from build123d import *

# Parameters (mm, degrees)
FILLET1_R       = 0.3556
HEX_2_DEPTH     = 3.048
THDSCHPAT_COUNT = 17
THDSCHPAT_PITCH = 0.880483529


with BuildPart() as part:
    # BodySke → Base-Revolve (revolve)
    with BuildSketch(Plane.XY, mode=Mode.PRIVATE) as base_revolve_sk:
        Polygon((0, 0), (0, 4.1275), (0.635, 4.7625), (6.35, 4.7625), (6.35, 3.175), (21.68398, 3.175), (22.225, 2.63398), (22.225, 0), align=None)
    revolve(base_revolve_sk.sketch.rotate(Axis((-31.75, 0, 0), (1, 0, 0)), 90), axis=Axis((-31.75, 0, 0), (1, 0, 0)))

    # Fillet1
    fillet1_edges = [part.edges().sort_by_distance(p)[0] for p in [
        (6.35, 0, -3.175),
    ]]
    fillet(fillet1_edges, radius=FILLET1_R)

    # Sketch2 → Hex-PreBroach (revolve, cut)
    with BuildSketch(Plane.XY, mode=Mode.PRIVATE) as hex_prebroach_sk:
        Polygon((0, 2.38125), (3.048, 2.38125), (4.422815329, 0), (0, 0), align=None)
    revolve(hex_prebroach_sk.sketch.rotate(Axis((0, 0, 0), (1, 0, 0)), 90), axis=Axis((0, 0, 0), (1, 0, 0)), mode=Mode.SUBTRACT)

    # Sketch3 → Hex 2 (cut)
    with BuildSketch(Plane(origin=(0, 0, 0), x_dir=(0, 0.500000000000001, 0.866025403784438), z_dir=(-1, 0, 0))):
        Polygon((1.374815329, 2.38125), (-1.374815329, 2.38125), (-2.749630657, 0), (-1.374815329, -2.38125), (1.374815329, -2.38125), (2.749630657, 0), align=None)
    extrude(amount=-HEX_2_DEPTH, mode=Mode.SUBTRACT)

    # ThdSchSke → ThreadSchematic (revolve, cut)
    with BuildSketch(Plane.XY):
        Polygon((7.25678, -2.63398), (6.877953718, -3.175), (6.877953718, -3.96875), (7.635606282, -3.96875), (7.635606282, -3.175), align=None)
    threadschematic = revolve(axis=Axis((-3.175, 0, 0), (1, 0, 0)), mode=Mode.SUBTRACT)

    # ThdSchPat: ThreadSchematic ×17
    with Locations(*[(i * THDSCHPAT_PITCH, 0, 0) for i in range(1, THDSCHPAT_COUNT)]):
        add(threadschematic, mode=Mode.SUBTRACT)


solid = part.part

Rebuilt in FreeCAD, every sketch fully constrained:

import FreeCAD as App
import Part
import Sketcher
from FreeCAD import Vector
Q = App.Units.Quantity


def edges_at(feature, points):
    """Names of the edges that pass closest to the given points."""
    edges = feature.Shape.Edges
    near = lambda p: min(range(len(edges)), key=lambda i: edges[i].distToShape(Part.Vertex(*p))[0])
    return sorted({f"Edge{near(p) + 1}" for p in points})

doc = App.newDocument("Part")
body = doc.addObject("PartDesign::Body", "Body")

# Sketch on XY plane
sketch1 = body.newObject("Sketcher::SketchObject", "Sketch")
sketch1.AttachmentSupport = (doc.getObject("XY_Plane"), [""])
sketch1.MapMode = "FlatFace"
sketch1.addGeometry(Part.LineSegment(Vector(0, 4.1, 0), Vector(0, 0, 0)), False)
sketch1.addGeometry(Part.LineSegment(Vector(0, 0, 0), Vector(22.2, 0, 0)), False)
sketch1.addGeometry(Part.LineSegment(Vector(22.2, 0, 0), Vector(22.2, 2.6, 0)), False)
sketch1.addGeometry(Part.LineSegment(Vector(22.2, 2.6, 0), Vector(21.7, 3.2, 0)), False)
sketch1.addGeometry(Part.LineSegment(Vector(21.7, 3.2, 0), Vector(6.3, 3.2, 0)), False)
sketch1.addGeometry(Part.LineSegment(Vector(6.3, 3.2, 0), Vector(6.3, 4.8, 0)), False)
sketch1.addGeometry(Part.LineSegment(Vector(6.3, 4.8, 0), Vector(0.6, 4.8, 0)), False)
sketch1.addGeometry(Part.LineSegment(Vector(0.6, 4.8, 0), Vector(0, 4.1, 0)), False)
sketch1.addConstraint(Sketcher.Constraint("Coincident", 0, 2, 1, 1))
sketch1.addConstraint(Sketcher.Constraint("Coincident", 1, 2, 2, 1))
sketch1.addConstraint(Sketcher.Constraint("Coincident", 2, 2, 3, 1))
sketch1.addConstraint(Sketcher.Constraint("Coincident", 3, 2, 4, 1))
sketch1.addConstraint(Sketcher.Constraint("Coincident", 4, 2, 5, 1))
sketch1.addConstraint(Sketcher.Constraint("Coincident", 5, 2, 6, 1))
sketch1.addConstraint(Sketcher.Constraint("Coincident", 6, 2, 7, 1))
sketch1.addConstraint(Sketcher.Constraint("Coincident", 7, 2, 0, 1))
sketch1.addConstraint(Sketcher.Constraint("Vertical", 0))
sketch1.addConstraint(Sketcher.Constraint("Horizontal", 1))
sketch1.addConstraint(Sketcher.Constraint("Vertical", 2))
sketch1.addConstraint(Sketcher.Constraint("Horizontal", 4))
sketch1.addConstraint(Sketcher.Constraint("Vertical", 5))
sketch1.addConstraint(Sketcher.Constraint("Horizontal", 6))
sketch1.addConstraint(Sketcher.Constraint("Coincident", 0, 2, -1, 1))
sketch1.addConstraint(Sketcher.Constraint("Perpendicular", 3, 7))
sketch1.addConstraint(Sketcher.Constraint("Angle", 3, Q("135 deg")))
sketch1.addConstraint(Sketcher.Constraint("DistanceX", 1, 1, 1, 2, Q("0.875 in")))
sketch1.addConstraint(Sketcher.Constraint("DistanceX", 6, 2, 6, 1, Q("0.225 in")))
sketch1.addConstraint(Sketcher.Constraint("DistanceY", 5, 1, 5, 2, Q("0.0625 in")))
sketch1.addConstraint(Sketcher.Constraint("DistanceX", -1, 1, 4, 2, Q("0.25 in")))
sketch1.addConstraint(Sketcher.Constraint("DistanceX", 4, 2, 4, 1, Q("0.6037 in")))
sketch1.addConstraint(Sketcher.Constraint("DistanceY", 0, 2, 0, 1, Q("0.1625 in")))
revolution = body.newObject("PartDesign::Revolution", "Revolution")
revolution.Profile = sketch1
revolution.ReferenceAxis = (sketch1, ["H_Axis"])
revolution.Angle = 360
doc.recompute()

fillet = body.newObject("PartDesign::Fillet", "Fillet")
fillet.Base = (revolution, edges_at(revolution, [(6.35, 0, -3.175)]))
fillet.Radius = Q("0.014 in")

# Sketch on XY plane
sketch2 = body.newObject("Sketcher::SketchObject", "Sketch001")
sketch2.AttachmentSupport = (doc.getObject("XY_Plane"), [""])
sketch2.MapMode = "FlatFace"
sketch2.addGeometry(Part.LineSegment(Vector(3, 2.4, 0), Vector(0, 2.4, 0)), False)
sketch2.addGeometry(Part.LineSegment(Vector(0, 2.4, 0), Vector(0, 0, 0)), False)
sketch2.addGeometry(Part.LineSegment(Vector(0, 0, 0), Vector(4.4, 0, 0)), False)
sketch2.addGeometry(Part.LineSegment(Vector(4.4, 0, 0), Vector(3, 2.4, 0)), False)
sketch2.addConstraint(Sketcher.Constraint("Coincident", 0, 2, 1, 1))
sketch2.addConstraint(Sketcher.Constraint("Coincident", 1, 2, 2, 1))
sketch2.addConstraint(Sketcher.Constraint("Coincident", 2, 2, 3, 1))
sketch2.addConstraint(Sketcher.Constraint("Coincident", 3, 2, 0, 1))
sketch2.addConstraint(Sketcher.Constraint("Horizontal", 0))
sketch2.addConstraint(Sketcher.Constraint("Vertical", 1))
sketch2.addConstraint(Sketcher.Constraint("Horizontal", 2))
sketch2.addConstraint(Sketcher.Constraint("Coincident", 1, 2, -1, 1))
sketch2.addConstraint(Sketcher.Constraint("Angle", 3, Q("120 deg")))
sketch2.addConstraint(Sketcher.Constraint("DistanceX", 0, 2, 0, 1, Q("0.12 in")))
sketch2.addConstraint(Sketcher.Constraint("DistanceY", 1, 2, 1, 1, Q("0.09375 in")))
groove = body.newObject("PartDesign::Groove", "Groove")
groove.Profile = sketch2
groove.ReferenceAxis = (sketch2, ["H_Axis"])
groove.Angle = 360

# Sketch on YZ plane
sketch3 = body.newObject("Sketcher::SketchObject", "Sketch002")
sketch3.AttachmentSupport = (doc.getObject("YZ_Plane"), [""])
sketch3.MapMode = "FlatFace"
sketch3.addGeometry(Part.LineSegment(Vector(2.7, 0, 0), Vector(1.4, -2.4, 0)), False)
sketch3.addGeometry(Part.LineSegment(Vector(1.4, -2.4, 0), Vector(-1.4, -2.4, 0)), False)
sketch3.addGeometry(Part.LineSegment(Vector(-1.4, -2.4, 0), Vector(-2.7, 0, 0)), False)
sketch3.addGeometry(Part.LineSegment(Vector(-2.7, 0, 0), Vector(-1.4, 2.4, 0)), False)
sketch3.addGeometry(Part.LineSegment(Vector(-1.4, 2.4, 0), Vector(1.4, 2.4, 0)), False)
sketch3.addGeometry(Part.LineSegment(Vector(1.4, 2.4, 0), Vector(2.7, 0, 0)), False)
sketch3.addConstraint(Sketcher.Constraint("Coincident", 0, 2, 1, 1))
sketch3.addConstraint(Sketcher.Constraint("Coincident", 1, 2, 2, 1))
sketch3.addConstraint(Sketcher.Constraint("Coincident", 2, 2, 3, 1))
sketch3.addConstraint(Sketcher.Constraint("Coincident", 3, 2, 4, 1))
sketch3.addConstraint(Sketcher.Constraint("Coincident", 4, 2, 5, 1))
sketch3.addConstraint(Sketcher.Constraint("Coincident", 5, 2, 0, 1))
sketch3.addConstraint(Sketcher.Constraint("Horizontal", 1))
sketch3.addConstraint(Sketcher.Constraint("Horizontal", 4))
sketch3.addConstraint(Sketcher.Constraint("Symmetric", 0, 2, 3, 2, -1, 1))
sketch3.addConstraint(Sketcher.Constraint("Symmetric", 2, 2, 5, 2, -1, 1))
sketch3.addConstraint(Sketcher.Constraint("PointOnObject", 2, 2, -1))
sketch3.addConstraint(Sketcher.Constraint("Parallel", 2, 5))
sketch3.addConstraint(Sketcher.Constraint("Vertical", 1, 2, 3, 2))
sketch3.addConstraint(Sketcher.Constraint("Angle", 0, Q("-120 deg")))
sketch3.addConstraint(Sketcher.Constraint("DistanceY", 0, 2, -1, 1, Q("0.09375 in")))
sketch3.addConstraint(Sketcher.Constraint("DistanceX", 1, 2, 1, 1, Q("2.749631 mm")))
pocket1 = body.newObject("PartDesign::Pocket", "Pocket")
pocket1.Profile = sketch3
pocket1.Length = Q("0.12 in")
pocket1.Reversed = True

# Sketch on XY plane
sketch4 = body.newObject("Sketcher::SketchObject", "Sketch003")
sketch4.AttachmentSupport = (doc.getObject("XY_Plane"), [""])
sketch4.MapMode = "FlatFace"
sketch4.addGeometry(Part.LineSegment(Vector(7.3, -2.6, 0), Vector(6.9, -3.2, 0)), False)
sketch4.addGeometry(Part.LineSegment(Vector(6.9, -3.2, 0), Vector(6.9, -4, 0)), False)
sketch4.addGeometry(Part.LineSegment(Vector(6.9, -4, 0), Vector(7.6, -4, 0)), False)
sketch4.addGeometry(Part.LineSegment(Vector(7.6, -4, 0), Vector(7.6, -3.2, 0)), False)
sketch4.addGeometry(Part.LineSegment(Vector(7.6, -3.2, 0), Vector(7.3, -2.6, 0)), False)
sketch4.addConstraint(Sketcher.Constraint("Coincident", 0, 2, 1, 1))
sketch4.addConstraint(Sketcher.Constraint("Coincident", 1, 2, 2, 1))
sketch4.addConstraint(Sketcher.Constraint("Coincident", 2, 2, 3, 1))
sketch4.addConstraint(Sketcher.Constraint("Coincident", 3, 2, 4, 1))
sketch4.addConstraint(Sketcher.Constraint("Coincident", 4, 2, 0, 1))
sketch4.addConstraint(Sketcher.Constraint("Vertical", 1))
sketch4.addConstraint(Sketcher.Constraint("Horizontal", 2))
sketch4.addConstraint(Sketcher.Constraint("Vertical", 3))
sketch4.addConstraint(Sketcher.Constraint("Horizontal", 0, 2, 3, 2))
sketch4.addConstraint(Sketcher.Constraint("Equal", 0, 4))
sketch4.addConstraint(Sketcher.Constraint("Angle", 0, Q("-125 deg")))
sketch4.addConstraint(Sketcher.Constraint("DistanceY", 1, 2, 1, 1, Q("0.03125 in")))
sketch4.addConstraint(Sketcher.Constraint("DistanceY", 0, 2, -1, 1, Q("0.125 in")))
sketch4.addConstraint(Sketcher.Constraint("DistanceX", -1, 1, 4, 2, Q("0.2857 in")))
sketch4.addConstraint(Sketcher.Constraint("DistanceY", 4, 2, -1, 1, Q("0.1037 in")))
groove2 = body.newObject("PartDesign::Groove", "Groove001")
groove2.Profile = sketch4
groove2.ReferenceAxis = (sketch4, ["H_Axis"])
groove2.Angle = 360
doc.recompute()

linearpattern = body.newObject("PartDesign::LinearPattern", "LinearPattern")
linearpattern.Originals = [groove2]
linearpattern.Direction = (doc.getObject("X_Axis"), [""])
linearpattern.Mode = "offset"
linearpattern.Offset = 0.880484
linearpattern.Occurrences = 17
body.Tip = linearpattern

doc.recompute()
